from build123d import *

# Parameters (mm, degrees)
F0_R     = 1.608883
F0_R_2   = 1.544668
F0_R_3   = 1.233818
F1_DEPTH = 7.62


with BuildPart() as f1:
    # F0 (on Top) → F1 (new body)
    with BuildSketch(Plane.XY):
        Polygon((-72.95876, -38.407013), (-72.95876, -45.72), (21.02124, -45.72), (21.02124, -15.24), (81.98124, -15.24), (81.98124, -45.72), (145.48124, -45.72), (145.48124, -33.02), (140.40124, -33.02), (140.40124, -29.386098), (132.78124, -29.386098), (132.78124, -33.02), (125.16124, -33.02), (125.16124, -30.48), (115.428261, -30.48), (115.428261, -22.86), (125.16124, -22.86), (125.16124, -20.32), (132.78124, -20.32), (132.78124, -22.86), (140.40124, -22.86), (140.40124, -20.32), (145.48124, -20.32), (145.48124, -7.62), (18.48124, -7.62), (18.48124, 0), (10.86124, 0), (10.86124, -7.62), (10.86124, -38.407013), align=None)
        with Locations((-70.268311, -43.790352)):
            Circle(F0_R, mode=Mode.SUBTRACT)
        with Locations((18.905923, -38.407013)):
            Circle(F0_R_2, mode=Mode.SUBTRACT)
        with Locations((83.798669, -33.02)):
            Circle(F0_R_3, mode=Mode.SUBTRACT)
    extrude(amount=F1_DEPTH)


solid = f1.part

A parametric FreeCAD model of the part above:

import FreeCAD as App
import Part
import Sketcher
from FreeCAD import Vector
Q = App.Units.Quantity

doc = App.newDocument("Part")
params = doc.addObject("Spreadsheet::Sheet", "Params")
for row, (alias, value) in enumerate([
    ("sketch1_width", "5 in"),
    ("sketch1_width2", "3.7 in"),
    ("sketch1_width3", "2.4 in"),
    ("sketch1_width4", "2.5 in"),
    ("sketch1_width5", "0.2 in"),
    ("pad1_length", "0.3 in"),
], start=1):
    params.set(f"A{row}", alias)
    params.set(f"B{row}", "=" + value)
    params.setAlias(f"B{row}", alias)

body = doc.addObject("PartDesign::Body", "Body")

sketch1 = doc.addObject("Sketcher::SketchObject", "Sketch")
body.addObject(sketch1)
sketch1.AttachmentSupport = (doc.XY_Plane, [""])
sketch1.MapMode = "FlatFace"
sketch1.addGeometry(Part.LineSegment(Vector(-73, -38.4, 0), Vector(-73, -45.7, 0)), False)
sketch1.addGeometry(Part.LineSegment(Vector(-73, -45.7, 0), Vector(21, -45.7, 0)), False)
sketch1.addGeometry(Part.LineSegment(Vector(21, -45.7, 0), Vector(21, -15.2, 0)), False)
sketch1.addGeometry(Part.LineSegment(Vector(21, -15.2, 0), Vector(82, -15.2, 0)), False)
sketch1.addGeometry(Part.LineSegment(Vector(82, -15.2, 0), Vector(82, -45.7, 0)), False)
sketch1.addGeometry(Part.LineSegment(Vector(82, -45.7, 0), Vector(145.5, -45.7, 0)), False)
sketch1.addGeometry(Part.LineSegment(Vector(145.5, -45.7, 0), Vector(145.5, -33, 0)), False)
sketch1.addGeometry(Part.LineSegment(Vector(145.5, -33, 0), Vector(140.4, -33, 0)), False)
sketch1.addGeometry(Part.LineSegment(Vector(140.4, -33, 0), Vector(140.4, -29.4, 0)), False)
sketch1.addGeometry(Part.LineSegment(Vector(140.4, -29.4, 0), Vector(132.8, -29.4, 0)), False)
sketch1.addGeometry(Part.LineSegment(Vector(132.8, -29.4, 0), Vector(132.8, -33, 0)), False)
sketch1.addGeometry(Part.LineSegment(Vector(132.8, -33, 0), Vector(125.2, -33, 0)), False)
sketch1.addGeometry(Part.LineSegment(Vector(125.2, -33, 0), Vector(125.2, -30.5, 0)), False)
sketch1.addGeometry(Part.LineSegment(Vector(125.2, -30.5, 0), Vector(115.4, -30.5, 0)), False)
sketch1.addGeometry(Part.LineSegment(Vector(115.4, -30.5, 0), Vector(115.4, -22.9, 0)), False)
sketch1.addGeometry(Part.LineSegment(Vector(115.4, -22.9, 0), Vector(125.2, -22.9, 0)), False)
sketch1.addGeometry(Part.LineSegment(Vector(125.2, -22.9, 0), Vector(125.2, -20.3, 0)), False)
sketch1.addGeometry(Part.LineSegment(Vector(125.2, -20.3, 0), Vector(132.8, -20.3, 0)), False)
sketch1.addGeometry(Part.LineSegment(Vector(132.8, -20.3, 0), Vector(132.8, -22.9, 0)), False)
sketch1.addGeometry(Part.LineSegment(Vector(132.8, -22.9, 0), Vector(140.4, -22.9, 0)), False)
sketch1.addGeometry(Part.LineSegment(Vector(140.4, -22.9, 0), Vector(140.4, -20.3, 0)), False)
sketch1.addGeometry(Part.LineSegment(Vector(140.4, -20.3, 0), Vector(145.5, -20.3, 0)), False)
sketch1.addGeometry(Part.LineSegment(Vector(145.5, -20.3, 0), Vector(145.5, -7.6, 0)), False)
sketch1.addGeometry(Part.LineSegment(Vector(145.5, -7.6, 0), Vector(18.5, -7.6, 0)), False)
sketch1.addGeometry(Part.LineSegment(Vector(18.5, -7.6, 0), Vector(18.5, 0, 0)), False)
sketch1.addGeometry(Part.LineSegment(Vector(18.5, 0, 0), Vector(10.9, 0, 0)), False)
sketch1.addGeometry(Part.LineSegment(Vector(10.9, 0, 0), Vector(10.9, -38.4, 0)), False)
sketch1.addGeometry(Part.LineSegment(Vector(10.9, -38.4, 0), Vector(-73, -38.4, 0)), False)
sketch1.addGeometry(Part.Circle(Vector(-70.3, -43.8, 0), Vector(0, 0, 1), 1.6), False)
sketch1.addGeometry(Part.Circle(Vector(18.9, -38.4, 0), Vector(0, 0, 1), 1.5), False)
sketch1.addGeometry(Part.Circle(Vector(83.8, -33, 0), Vector(0, 0, 1), 1.2), False)
sketch1.addConstraint(Sketcher.Constraint("Coincident", 0, 2, 1, 1))
sketch1.addConstraint(Sketcher.Constraint("Coincident", 1, 2, 2, 1))
sketch1.addConstraint(Sketcher.Constraint("Coincident", 2, 2, 3, 1))
sketch1.addConstraint(Sketcher.Constraint("Coincident", 3, 2, 4, 1))
sketch1.addConstraint(Sketcher.Constraint("Coincident", 4, 2, 5, 1))
sketch1.addConstraint(Sketcher.Constraint("Coincident", 5, 2, 6, 1))
sketch1.addConstraint(Sketcher.Constraint("Coincident", 6, 2, 7, 1))
sketch1.addConstraint(Sketcher.Constraint("Coincident", 7, 2, 8, 1))
sketch1.addConstraint(Sketcher.Constraint("Coincident", 8, 2, 9, 1))
sketch1.addConstraint(Sketcher.Constraint("Coincident", 9, 2, 10, 1))
sketch1.addConstraint(Sketcher.Constraint("Coincident", 10, 2, 11, 1))
sketch1.addConstraint(Sketcher.Constraint("Coincident", 11, 2, 12, 1))
sketch1.addConstraint(Sketcher.Constraint("Coincident", 12, 2, 13, 1))
sketch1.addConstraint(Sketcher.Constraint("Coincident", 13, 2, 14, 1))
sketch1.addConstraint(Sketcher.Constraint("Coincident", 14, 2, 15, 1))
sketch1.addConstraint(Sketcher.Constraint("Coincident", 15, 2, 16, 1))
sketch1.addConstraint(Sketcher.Constraint("Coincident", 16, 2, 17, 1))
sketch1.addConstraint(Sketcher.Constraint("Coincident", 17, 2, 18, 1))
sketch1.addConstraint(Sketcher.Constraint("Coincident", 18, 2, 19, 1))
sketch1.addConstraint(Sketcher.Constraint("Coincident", 19, 2, 20, 1))
sketch1.addConstraint(Sketcher.Constraint("Coincident", 20, 2, 21, 1))
sketch1.addConstraint(Sketcher.Constraint("Coincident", 21, 2, 22, 1))
sketch1.addConstraint(Sketcher.Constraint("Coincident", 22, 2, 23, 1))
sketch1.addConstraint(Sketcher.Constraint("Coincident", 23, 2, 24, 1))
sketch1.addConstraint(Sketcher.Constraint("Coincident", 24, 2, 25, 1))
sketch1.addConstraint(Sketcher.Constraint("Coincident", 25, 2, 26, 1))
sketch1.addConstraint(Sketcher.Constraint("Coincident", 26, 2, 27, 1))
sketch1.addConstraint(Sketcher.Constraint("Coincident", 27, 2, 0, 1))
sketch1.addConstraint(Sketcher.Constraint("Vertical", 0))
sketch1.addConstraint(Sketcher.Constraint("Horizontal", 1))
sketch1.addConstraint(Sketcher.Constraint("Vertical", 2))
sketch1.addConstraint(Sketcher.Constraint("Horizontal", 3))
sketch1.addConstraint(Sketcher.Constraint("Vertical", 4))
sketch1.addConstraint(Sketcher.Constraint("Horizontal", 5))
sketch1.addConstraint(Sketcher.Constraint("Vertical", 6))
sketch1.addConstraint(Sketcher.Constraint("Horizontal", 7))
sketch1.addConstraint(Sketcher.Constraint("Vertical", 8))
sketch1.addConstraint(Sketcher.Constraint("Horizontal", 9))
sketch1.addConstraint(Sketcher.Constraint("Vertical", 10))
sketch1.addConstraint(Sketcher.Constraint("Horizontal", 11))
sketch1.addConstraint(Sketcher.Constraint("Vertical", 12))
sketch1.addConstraint(Sketcher.Constraint("Horizontal", 13))
sketch1.addConstraint(Sketcher.Constraint("Vertical", 14))
sketch1.addConstraint(Sketcher.Constraint("Horizontal", 15))
sketch1.addConstraint(Sketcher.Constraint("Vertical", 16))
sketch1.addConstraint(Sketcher.Constraint("Horizontal", 17))
sketch1.addConstraint(Sketcher.Constraint("Vertical", 18))
sketch1.addConstraint(Sketcher.Constraint("Horizontal", 19))
sketch1.addConstraint(Sketcher.Constraint("Vertical", 20))
sketch1.addConstraint(Sketcher.Constraint("Horizontal", 21))
sketch1.addConstraint(Sketcher.Constraint("Vertical", 22))
sketch1.addConstraint(Sketcher.Constraint("Horizontal", 23))
sketch1.addConstraint(Sketcher.Constraint("Vertical", 24))
sketch1.addConstraint(Sketcher.Constraint("Horizontal", 25))
sketch1.addConstraint(Sketcher.Constraint("Vertical", 26))
sketch1.addConstraint(Sketcher.Constraint("Horizontal", 27))
sketch1.addConstraint(Sketcher.Constraint("PointOnObject", 24, 2, -1))
sketch1.addConstraint(Sketcher.Constraint("Horizontal", 1, 2, 4, 2))
sketch1.addConstraint(Sketcher.Constraint("Horizontal", 30, 3, 6, 2))
sketch1.addConstraint(Sketcher.Constraint("Horizontal", 7, 2, 10, 2))
sketch1.addConstraint(Sketcher.Constraint("Horizontal", 15, 2, 18, 2))
sketch1.addConstraint(Sketcher.Constraint("Horizontal", 17, 2, 20, 2))
sketch1.addConstraint(Sketcher.Constraint("Horizontal", 29, 3, 26, 2))
sketch1.addConstraint(Sketcher.Constraint("Vertical", 12, 2, 15, 2))
sketch1.addConstraint(Sketcher.Constraint("Vertical", 10, 2, 17, 2))
sketch1.addConstraint(Sketcher.Constraint("Vertical", 8, 2, 19, 2))
sketch1.addConstraint(Sketcher.Constraint("Vertical", 6, 2, 21, 2))
sketch1.addConstraint(Sketcher.Constraint("Equal", 9, 11))
sketch1.addConstraint(Sketcher.Constraint("Equal", 19, 25))
sketch1.addConstraint(Sketcher.Constraint("Equal", 25, 14))
sketch1.addConstraint(Sketcher.Constraint("Equal", 12, 16))
sketch1.addConstraint(Sketcher.Constraint("Equal", 6, 22))
sketch1.addConstraint(Sketcher.Constraint("Equal", 14, 24))
sketch1.addConstraint(Sketcher.Constraint("DistanceX", 23, 2, 23, 1, Q("5 in")))
sketch1.addConstraint(Sketcher.Constraint("DistanceX", 1, 1, 1, 2, Q("3.7 in")))
sketch1.addConstraint(Sketcher.Constraint("DistanceX", 3, 1, 3, 2, Q("2.4 in")))
sketch1.addConstraint(Sketcher.Constraint("DistanceX", 5, 1, 5, 2, Q("2.5 in")))
sketch1.addConstraint(Sketcher.Constraint("DistanceX", 7, 2, 7, 1, Q("0.2 in")))
sketch1.addConstraint(Sketcher.Constraint("DistanceX", 9, 2, 9, 1, Q("0.3 in")))
sketch1.addConstraint(Sketcher.Constraint("DistanceY", 2, 1, 2, 2, Q("1.2 in")))
sketch1.addConstraint(Sketcher.Constraint("DistanceY", 6, 1, 6, 2, Q("0.5 in")))
sketch1.addConstraint(Sketcher.Constraint("DistanceY", 12, 1, 12, 2, Q("0.1 in")))
sketch1.addConstraint(Sketcher.Constraint("Diameter", 28, Q("3.217766 mm")))
sketch1.addConstraint(Sketcher.Constraint("Diameter", 29, Q("3.089336 mm")))
sketch1.addConstraint(Sketcher.Constraint("Diameter", 30, Q("2.467636 mm")))
sketch1.addConstraint(Sketcher.Constraint("DistanceX", 13, 2, 13, 1, Q("9.732979 mm")))
sketch1.addConstraint(Sketcher.Constraint("DistanceY", 8, 2, -1, 1, Q("29.386098 mm")))
sketch1.addConstraint(Sketcher.Constraint("DistanceY", 0, 2, 0, 1, Q("7.312987 mm")))
sketch1.addConstraint(Sketcher.Constraint("DistanceX", 28, 3, -1, 1, Q("70.268311 mm")))
sketch1.addConstraint(Sketcher.Constraint("DistanceX", -1, 1, 30, 3, Q("83.798669 mm")))
sketch1.addConstraint(Sketcher.Constraint("DistanceX", 0, 2, -1, 1, Q("72.95876 mm")))
sketch1.addConstraint(Sketcher.Constraint("DistanceY", 28, 3, 29, 3, Q("5.383339 mm")))
sketch1.addConstraint(Sketcher.Constraint("DistanceX", -1, 1, 29, 3, Q("18.905923 mm")))
sketch1.setExpression("Constraints[73]", "Params.sketch1_width")
sketch1.setExpression("Constraints[74]", "Params.sketch1_width2")
sketch1.setExpression("Constraints[75]", "Params.sketch1_width3")
sketch1.setExpression("Constraints[76]", "Params.sketch1_width4")
sketch1.setExpression("Constraints[77]", "Params.sketch1_width5")
pad1 = doc.addObject("PartDesign::Pad", "Pad")
body.addObject(pad1)
pad1.Profile = sketch1
pad1.setExpression("Length", "Params.pad1_length")

doc.recompute()
